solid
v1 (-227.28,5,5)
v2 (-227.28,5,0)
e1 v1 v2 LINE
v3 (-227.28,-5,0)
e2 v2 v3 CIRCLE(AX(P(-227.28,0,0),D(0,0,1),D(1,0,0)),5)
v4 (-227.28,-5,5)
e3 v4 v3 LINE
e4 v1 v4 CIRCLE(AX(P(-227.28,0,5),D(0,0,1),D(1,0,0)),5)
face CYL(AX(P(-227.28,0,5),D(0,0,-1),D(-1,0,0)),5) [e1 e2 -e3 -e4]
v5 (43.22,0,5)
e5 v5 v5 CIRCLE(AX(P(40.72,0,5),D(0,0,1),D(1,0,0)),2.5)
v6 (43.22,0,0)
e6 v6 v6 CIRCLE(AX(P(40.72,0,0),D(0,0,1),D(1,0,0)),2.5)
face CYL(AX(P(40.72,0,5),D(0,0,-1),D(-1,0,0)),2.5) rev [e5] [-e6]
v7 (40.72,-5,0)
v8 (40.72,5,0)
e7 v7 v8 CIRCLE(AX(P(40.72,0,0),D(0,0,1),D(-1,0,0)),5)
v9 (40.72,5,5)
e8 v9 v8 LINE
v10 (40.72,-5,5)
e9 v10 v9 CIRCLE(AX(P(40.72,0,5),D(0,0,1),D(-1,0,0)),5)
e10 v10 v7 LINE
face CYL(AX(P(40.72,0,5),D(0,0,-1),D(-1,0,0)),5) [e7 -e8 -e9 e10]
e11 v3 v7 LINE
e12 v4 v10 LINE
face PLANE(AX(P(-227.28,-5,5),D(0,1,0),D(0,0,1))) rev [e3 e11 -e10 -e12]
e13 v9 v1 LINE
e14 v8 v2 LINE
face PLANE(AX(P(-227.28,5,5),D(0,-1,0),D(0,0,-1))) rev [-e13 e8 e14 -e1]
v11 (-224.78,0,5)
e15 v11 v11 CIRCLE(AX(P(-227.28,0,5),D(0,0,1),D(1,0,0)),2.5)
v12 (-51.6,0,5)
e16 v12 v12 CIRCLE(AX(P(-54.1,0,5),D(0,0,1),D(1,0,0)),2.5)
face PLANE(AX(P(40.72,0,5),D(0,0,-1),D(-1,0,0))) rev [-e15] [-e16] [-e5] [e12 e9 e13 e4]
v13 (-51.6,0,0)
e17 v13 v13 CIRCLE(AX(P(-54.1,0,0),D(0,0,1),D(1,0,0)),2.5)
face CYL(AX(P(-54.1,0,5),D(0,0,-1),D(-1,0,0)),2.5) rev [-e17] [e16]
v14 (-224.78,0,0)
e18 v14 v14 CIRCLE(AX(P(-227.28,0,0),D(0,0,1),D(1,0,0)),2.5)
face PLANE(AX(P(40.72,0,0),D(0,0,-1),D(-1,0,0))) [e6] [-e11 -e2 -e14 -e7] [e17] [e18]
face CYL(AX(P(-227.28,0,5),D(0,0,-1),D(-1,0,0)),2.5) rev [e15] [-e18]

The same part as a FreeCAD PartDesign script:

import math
import FreeCAD as App
import Part
import Sketcher
Q = App.Units.Quantity

doc = App.newDocument("Part")
params = doc.addObject("Spreadsheet::Sheet", "Params")
for row, (alias, value) in enumerate([
    ("sketch1_diameter", "5 mm"),
    ("sketch1_radius", "5 mm"),
    ("sketch1_width", "268 mm"),
    ("pad1_length", "5 mm"),
], start=1):
    params.set(f"A{row}", alias)
    params.set(f"B{row}", "=" + value)
    params.setAlias(f"B{row}", alias)

body = doc.addObject("PartDesign::Body", "Body")

# Sketch on XY plane
sketch1 = body.newObject("Sketcher::SketchObject", "Sketch")
sketch1.AttachmentSupport = (doc.getObject("XY_Plane"), [""])
sketch1.MapMode = "FlatFace"
sketch1.addGeometry([
    Part.LineSegment(App.Vector(40.7, 5, 0), App.Vector(-227.3, 5, 0)),  # 0
    Part.ArcOfCircle(Part.Circle(App.Vector(-227.3, 0, 0), App.Vector(0, 0, 1), 5), math.radians(90), math.radians(270)),  # 1
    Part.LineSegment(App.Vector(-227.3, -5, 0), App.Vector(40.7, -5, 0)),  # 2
    Part.ArcOfCircle(Part.Circle(App.Vector(40.7, 0, 0), App.Vector(0, 0, 1), 5), math.radians(-90), math.radians(90)),  # 3
    Part.Circle(App.Vector(40.7, 0, 0), App.Vector(0, 0, 1), 2.5),  # 4
    Part.Circle(App.Vector(-54.1, 0, 0), App.Vector(0, 0, 1), 2.5),  # 5
    Part.Circle(App.Vector(-227.3, 0, 0), App.Vector(0, 0, 1), 2.5),  # 6
], False)
sketch1.addConstraint([
    Sketcher.Constraint("Tangent", 0, 2, 1, 1),
    Sketcher.Constraint("Tangent", 1, 2, 2, 1),
    Sketcher.Constraint("Tangent", 2, 2, 3, 1),
    Sketcher.Constraint("Tangent", 3, 2, 0, 1),
    Sketcher.Constraint("Horizontal", 0),
    Sketcher.Constraint("Horizontal", 2),
    Sketcher.Constraint("Coincident", 4, 3, 3, 3),
    Sketcher.Constraint("Coincident", 6, 3, 1, 3),
    Sketcher.Constraint("Equal", 4, 5),
    Sketcher.Constraint("Equal", 5, 6),
    Sketcher.Constraint("PointOnObject", 1, 3, -1),
    Sketcher.Constraint("PointOnObject", 5, 3, -1),
    Sketcher.Constraint("Diameter", 4, Q("5 mm")),
    Sketcher.Constraint("Radius", 1, Q("5 mm")),
    Sketcher.Constraint("DistanceX", 0, 2, 0, 1, Q("268 mm")),
    Sketcher.Constraint("DistanceX", 5, 3, -1, 1, Q("54.1 mm")),
    Sketcher.Constraint("DistanceX", 1, 3, -1, 1, Q("227.28 mm")),
])
sketch1.setExpression("Constraints[12]", "Params.sketch1_diameter")
sketch1.setExpression("Constraints[13]", "Params.sketch1_radius")
sketch1.setExpression("Constraints[14]", "Params.sketch1_width")
pad1 = body.newObject("PartDesign::Pad", "Pad")
pad1.Profile = sketch1
pad1.setExpression("Length", "Params.pad1_length")

doc.recompute()
